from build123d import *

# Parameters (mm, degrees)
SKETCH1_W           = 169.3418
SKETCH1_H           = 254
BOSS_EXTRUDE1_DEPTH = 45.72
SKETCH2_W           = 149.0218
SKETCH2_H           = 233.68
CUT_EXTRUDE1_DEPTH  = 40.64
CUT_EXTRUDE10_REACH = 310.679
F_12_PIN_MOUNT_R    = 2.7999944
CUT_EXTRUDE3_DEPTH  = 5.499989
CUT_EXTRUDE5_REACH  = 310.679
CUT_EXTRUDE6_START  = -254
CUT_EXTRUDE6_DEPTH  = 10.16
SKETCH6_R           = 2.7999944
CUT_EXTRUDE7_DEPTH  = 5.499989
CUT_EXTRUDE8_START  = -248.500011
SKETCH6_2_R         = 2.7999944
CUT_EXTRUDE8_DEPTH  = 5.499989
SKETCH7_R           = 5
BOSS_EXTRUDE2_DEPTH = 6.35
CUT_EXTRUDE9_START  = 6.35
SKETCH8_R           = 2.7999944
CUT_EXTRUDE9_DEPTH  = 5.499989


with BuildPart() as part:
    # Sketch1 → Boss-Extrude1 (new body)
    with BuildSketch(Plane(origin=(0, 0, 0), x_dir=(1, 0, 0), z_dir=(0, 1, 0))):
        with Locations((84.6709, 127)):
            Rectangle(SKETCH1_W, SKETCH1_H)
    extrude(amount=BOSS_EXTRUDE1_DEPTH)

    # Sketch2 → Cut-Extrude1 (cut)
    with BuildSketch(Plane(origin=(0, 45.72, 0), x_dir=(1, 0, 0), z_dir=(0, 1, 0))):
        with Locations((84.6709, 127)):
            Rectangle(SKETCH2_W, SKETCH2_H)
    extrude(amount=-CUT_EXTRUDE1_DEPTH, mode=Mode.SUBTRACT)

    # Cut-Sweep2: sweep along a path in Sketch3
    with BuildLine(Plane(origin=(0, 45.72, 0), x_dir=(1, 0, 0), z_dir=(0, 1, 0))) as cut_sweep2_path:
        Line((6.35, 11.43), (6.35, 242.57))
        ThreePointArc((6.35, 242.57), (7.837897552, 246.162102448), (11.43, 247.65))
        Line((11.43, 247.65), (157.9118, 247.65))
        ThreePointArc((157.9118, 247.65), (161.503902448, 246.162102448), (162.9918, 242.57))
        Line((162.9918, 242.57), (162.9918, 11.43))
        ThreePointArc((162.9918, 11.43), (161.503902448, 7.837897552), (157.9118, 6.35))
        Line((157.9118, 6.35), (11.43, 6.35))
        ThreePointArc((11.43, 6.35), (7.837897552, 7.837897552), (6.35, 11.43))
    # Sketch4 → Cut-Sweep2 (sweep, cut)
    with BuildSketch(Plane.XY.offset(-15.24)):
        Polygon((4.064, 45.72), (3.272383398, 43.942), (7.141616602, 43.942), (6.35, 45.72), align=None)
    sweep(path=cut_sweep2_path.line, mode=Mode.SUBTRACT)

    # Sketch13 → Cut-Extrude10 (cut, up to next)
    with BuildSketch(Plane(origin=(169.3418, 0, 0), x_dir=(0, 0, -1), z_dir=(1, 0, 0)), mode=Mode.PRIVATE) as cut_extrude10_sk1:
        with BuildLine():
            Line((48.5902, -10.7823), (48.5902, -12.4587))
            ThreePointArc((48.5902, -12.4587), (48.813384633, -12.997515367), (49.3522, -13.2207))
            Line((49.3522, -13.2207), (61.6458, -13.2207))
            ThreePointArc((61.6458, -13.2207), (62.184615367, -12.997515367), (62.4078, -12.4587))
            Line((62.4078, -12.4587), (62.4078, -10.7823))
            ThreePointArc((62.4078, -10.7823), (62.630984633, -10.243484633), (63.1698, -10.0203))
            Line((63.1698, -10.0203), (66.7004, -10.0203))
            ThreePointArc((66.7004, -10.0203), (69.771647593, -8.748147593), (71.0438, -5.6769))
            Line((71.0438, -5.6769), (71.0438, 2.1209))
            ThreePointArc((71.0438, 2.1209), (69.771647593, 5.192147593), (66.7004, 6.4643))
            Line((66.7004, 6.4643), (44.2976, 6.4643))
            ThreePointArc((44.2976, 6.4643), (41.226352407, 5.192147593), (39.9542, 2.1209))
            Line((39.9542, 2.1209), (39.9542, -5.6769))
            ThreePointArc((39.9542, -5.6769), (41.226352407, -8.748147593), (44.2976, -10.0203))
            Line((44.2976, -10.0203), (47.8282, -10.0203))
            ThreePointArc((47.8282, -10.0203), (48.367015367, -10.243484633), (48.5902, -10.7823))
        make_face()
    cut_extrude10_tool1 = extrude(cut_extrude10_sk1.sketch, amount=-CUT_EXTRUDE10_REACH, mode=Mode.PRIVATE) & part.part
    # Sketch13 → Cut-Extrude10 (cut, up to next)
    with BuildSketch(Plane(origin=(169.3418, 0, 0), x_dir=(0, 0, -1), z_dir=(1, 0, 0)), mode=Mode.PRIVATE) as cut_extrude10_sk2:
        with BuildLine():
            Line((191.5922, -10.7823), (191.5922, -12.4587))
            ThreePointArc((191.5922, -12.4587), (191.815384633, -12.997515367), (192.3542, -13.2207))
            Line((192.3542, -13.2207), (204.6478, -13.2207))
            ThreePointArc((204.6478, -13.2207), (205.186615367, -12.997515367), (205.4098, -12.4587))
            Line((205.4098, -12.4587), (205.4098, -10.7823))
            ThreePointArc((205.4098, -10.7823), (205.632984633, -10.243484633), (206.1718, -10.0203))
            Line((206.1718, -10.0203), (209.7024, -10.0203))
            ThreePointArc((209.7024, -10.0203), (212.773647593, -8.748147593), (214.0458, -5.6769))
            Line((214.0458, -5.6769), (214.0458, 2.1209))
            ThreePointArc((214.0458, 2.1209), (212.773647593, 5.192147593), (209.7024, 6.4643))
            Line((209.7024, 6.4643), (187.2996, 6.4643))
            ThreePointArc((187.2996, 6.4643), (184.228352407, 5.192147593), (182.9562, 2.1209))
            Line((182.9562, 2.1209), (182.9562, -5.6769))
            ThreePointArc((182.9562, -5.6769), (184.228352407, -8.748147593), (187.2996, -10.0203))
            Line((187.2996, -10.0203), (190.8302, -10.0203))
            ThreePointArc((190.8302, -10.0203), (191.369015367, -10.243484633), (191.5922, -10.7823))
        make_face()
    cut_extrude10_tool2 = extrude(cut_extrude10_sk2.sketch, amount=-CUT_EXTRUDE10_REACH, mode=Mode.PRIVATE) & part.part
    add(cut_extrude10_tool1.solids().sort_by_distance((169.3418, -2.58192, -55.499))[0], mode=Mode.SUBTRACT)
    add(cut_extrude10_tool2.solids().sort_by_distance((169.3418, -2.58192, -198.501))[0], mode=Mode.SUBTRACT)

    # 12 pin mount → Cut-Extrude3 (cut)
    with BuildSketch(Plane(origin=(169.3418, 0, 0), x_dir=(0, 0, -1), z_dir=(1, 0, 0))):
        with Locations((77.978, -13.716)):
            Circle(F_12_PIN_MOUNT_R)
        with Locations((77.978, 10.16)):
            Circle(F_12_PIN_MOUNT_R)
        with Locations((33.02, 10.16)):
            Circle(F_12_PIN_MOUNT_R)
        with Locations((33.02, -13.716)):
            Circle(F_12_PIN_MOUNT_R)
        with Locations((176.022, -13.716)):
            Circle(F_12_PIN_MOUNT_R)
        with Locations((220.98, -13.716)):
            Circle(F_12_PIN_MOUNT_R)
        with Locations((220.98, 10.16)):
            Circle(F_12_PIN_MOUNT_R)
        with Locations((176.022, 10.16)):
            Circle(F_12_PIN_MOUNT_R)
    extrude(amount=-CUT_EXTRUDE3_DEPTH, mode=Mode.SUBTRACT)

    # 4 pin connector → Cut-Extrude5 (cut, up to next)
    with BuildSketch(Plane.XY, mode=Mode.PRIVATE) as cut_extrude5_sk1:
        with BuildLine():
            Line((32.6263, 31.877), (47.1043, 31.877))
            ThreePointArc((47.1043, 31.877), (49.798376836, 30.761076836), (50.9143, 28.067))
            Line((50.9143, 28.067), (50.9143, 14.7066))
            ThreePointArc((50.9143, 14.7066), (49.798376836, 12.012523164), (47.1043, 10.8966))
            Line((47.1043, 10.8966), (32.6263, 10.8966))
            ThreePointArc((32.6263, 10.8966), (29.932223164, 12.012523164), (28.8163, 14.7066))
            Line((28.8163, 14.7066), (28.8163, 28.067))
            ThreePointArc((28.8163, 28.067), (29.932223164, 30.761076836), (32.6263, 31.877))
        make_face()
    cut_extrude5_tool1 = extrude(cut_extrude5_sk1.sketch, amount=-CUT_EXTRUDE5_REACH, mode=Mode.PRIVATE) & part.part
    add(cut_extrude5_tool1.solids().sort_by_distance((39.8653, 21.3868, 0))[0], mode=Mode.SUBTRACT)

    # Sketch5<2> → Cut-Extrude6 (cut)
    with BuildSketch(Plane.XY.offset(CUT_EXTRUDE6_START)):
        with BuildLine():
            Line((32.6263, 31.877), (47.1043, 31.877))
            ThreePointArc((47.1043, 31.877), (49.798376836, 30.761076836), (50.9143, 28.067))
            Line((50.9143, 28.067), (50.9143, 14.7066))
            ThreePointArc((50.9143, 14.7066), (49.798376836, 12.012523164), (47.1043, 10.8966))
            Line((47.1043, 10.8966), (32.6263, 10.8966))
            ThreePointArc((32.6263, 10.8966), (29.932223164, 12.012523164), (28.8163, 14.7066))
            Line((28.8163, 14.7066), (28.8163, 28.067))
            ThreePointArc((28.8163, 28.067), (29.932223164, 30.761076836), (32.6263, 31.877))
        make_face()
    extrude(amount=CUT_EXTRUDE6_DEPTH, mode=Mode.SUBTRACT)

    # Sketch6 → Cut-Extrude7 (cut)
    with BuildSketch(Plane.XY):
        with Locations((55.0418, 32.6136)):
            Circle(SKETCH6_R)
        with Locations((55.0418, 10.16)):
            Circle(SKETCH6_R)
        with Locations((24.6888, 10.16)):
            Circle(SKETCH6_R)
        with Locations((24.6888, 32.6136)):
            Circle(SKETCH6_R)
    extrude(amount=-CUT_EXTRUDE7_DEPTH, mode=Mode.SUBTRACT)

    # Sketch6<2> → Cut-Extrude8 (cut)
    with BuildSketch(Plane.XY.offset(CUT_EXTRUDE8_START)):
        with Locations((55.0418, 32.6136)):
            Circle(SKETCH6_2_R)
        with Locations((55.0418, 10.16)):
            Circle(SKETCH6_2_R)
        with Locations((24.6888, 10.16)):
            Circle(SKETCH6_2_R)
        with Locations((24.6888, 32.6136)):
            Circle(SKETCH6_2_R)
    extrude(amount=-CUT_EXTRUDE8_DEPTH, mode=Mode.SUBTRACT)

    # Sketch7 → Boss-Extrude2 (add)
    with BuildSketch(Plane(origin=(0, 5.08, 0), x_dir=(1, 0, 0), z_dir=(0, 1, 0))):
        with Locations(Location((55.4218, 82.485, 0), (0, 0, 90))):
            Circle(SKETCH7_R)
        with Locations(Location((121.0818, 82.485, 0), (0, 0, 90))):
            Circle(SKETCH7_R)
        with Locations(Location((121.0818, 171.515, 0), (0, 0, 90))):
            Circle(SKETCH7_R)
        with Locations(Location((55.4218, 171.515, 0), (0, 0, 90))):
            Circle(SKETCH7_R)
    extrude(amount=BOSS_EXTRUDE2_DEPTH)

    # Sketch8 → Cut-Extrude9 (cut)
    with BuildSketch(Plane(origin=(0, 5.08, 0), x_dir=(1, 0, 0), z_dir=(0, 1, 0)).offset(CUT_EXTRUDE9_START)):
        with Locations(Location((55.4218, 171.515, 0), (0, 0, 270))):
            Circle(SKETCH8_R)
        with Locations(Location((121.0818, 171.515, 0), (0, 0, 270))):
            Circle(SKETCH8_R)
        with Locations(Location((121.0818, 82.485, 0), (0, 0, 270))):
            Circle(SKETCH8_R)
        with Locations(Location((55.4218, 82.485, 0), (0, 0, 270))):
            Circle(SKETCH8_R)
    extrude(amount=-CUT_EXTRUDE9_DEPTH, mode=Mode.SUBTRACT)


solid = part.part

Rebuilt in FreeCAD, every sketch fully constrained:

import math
import FreeCAD as App
import Part
import Sketcher

V = App.Vector
Q = App.Units.Quantity

doc = App.newDocument("Part")
body = doc.addObject("PartDesign::Body", "Body")

sketch1 = body.newObject("Sketcher::SketchObject", "Sketch")
sketch1.AttachmentSupport = (doc.getObject("XZ_Plane"), [""])
sketch1.MapMode = "FlatFace"
sketch1.addGeometry(Part.LineSegment(V(0, -254, 0), V(0, 0, 0)), False)
sketch1.addGeometry(Part.LineSegment(V(0, 0, 0), V(169, 0, 0)), False)
sketch1.addGeometry(Part.LineSegment(V(169, 0, 0), V(169, -254, 0)), False)
sketch1.addGeometry(Part.LineSegment(V(169, -254, 0), V(0, -254, 0)), False)
sketch1.addConstraint(Sketcher.Constraint("Coincident", 0, 2, 1, 1))
sketch1.addConstraint(Sketcher.Constraint("Coincident", 1, 2, 2, 1))
sketch1.addConstraint(Sketcher.Constraint("Coincident", 2, 2, 3, 1))
sketch1.addConstraint(Sketcher.Constraint("Coincident", 3, 2, 0, 1))
sketch1.addConstraint(Sketcher.Constraint("Vertical", 0))
sketch1.addConstraint(Sketcher.Constraint("Horizontal", 1))
sketch1.addConstraint(Sketcher.Constraint("Vertical", 2))
sketch1.addConstraint(Sketcher.Constraint("Horizontal", 3))
sketch1.addConstraint(Sketcher.Constraint("Coincident", 0, 2, -1, 1))
sketch1.addConstraint(Sketcher.Constraint("DistanceY", 0, 1, 0, 2, Q("10 in")))
sketch1.addConstraint(Sketcher.Constraint("DistanceX", 1, 1, 1, 2, Q("6.667 in")))
pad1 = body.newObject("PartDesign::Pad", "Pad")
pad1.Profile = sketch1
pad1.Length = Q("1.8 in")
pad1.Reversed = True

sketch2 = body.newObject("Sketcher::SketchObject", "Sketch001")
sketch2.AttachmentSupport = (doc.getObject("XZ_Plane"), [""])
sketch2.MapMode = "FlatFace"
sketch2.AttachmentOffset = App.Placement(V(0, 0, -1.8 * 25.4), App.Rotation())
sketch2.addGeometry(Part.LineSegment(V(10, -244, 0), V(10, -10, 0)), False)
sketch2.addGeometry(Part.LineSegment(V(10, -10, 0), V(159, -10, 0)), False)
sketch2.addGeometry(Part.LineSegment(V(159, -10, 0), V(159, -244, 0)), False)
sketch2.addGeometry(Part.LineSegment(V(159, -244, 0), V(10, -244, 0)), False)
sketch2.addConstraint(Sketcher.Constraint("Coincident", 0, 2, 1, 1))
sketch2.addConstraint(Sketcher.Constraint("Coincident", 1, 2, 2, 1))
sketch2.addConstraint(Sketcher.Constraint("Coincident", 2, 2, 3, 1))
sketch2.addConstraint(Sketcher.Constraint("Coincident", 3, 2, 0, 1))
sketch2.addConstraint(Sketcher.Constraint("Vertical", 0))
sketch2.addConstraint(Sketcher.Constraint("Horizontal", 1))
sketch2.addConstraint(Sketcher.Constraint("Vertical", 2))
sketch2.addConstraint(Sketcher.Constraint("Horizontal", 3))
sketch2.addConstraint(Sketcher.Constraint("DistanceY", 0, 1, 0, 2, Q("9.2 in")))
sketch2.addConstraint(Sketcher.Constraint("DistanceX", -1, 1, 0, 2, Q("0.4 in")))
sketch2.addConstraint(Sketcher.Constraint("DistanceY", 0, 2, -1, 1, Q("0.4 in")))
sketch2.addConstraint(Sketcher.Constraint("DistanceX", 1, 1, 1, 2, Q("5.867 in")))
pocket1 = body.newObject("PartDesign::Pocket", "Pocket")
pocket1.Profile = sketch2
pocket1.Length = Q("1.6 in")
pocket1.Reversed = True

sketch3 = body.newObject("Sketcher::SketchObject", "Sketch002")
sketch3.AttachmentSupport = (doc.getObject("XY_Plane"), [""])
sketch3.MapMode = "FlatFace"
sketch3.AttachmentOffset = App.Placement(V(0, 0, -0.6 * 25.4), App.Rotation())
sketch3.addGeometry(Part.LineSegment(V(4.1, 45.7, 0), V(3.3, 43.9, 0)), False)
sketch3.addGeometry(Part.LineSegment(V(3.3, 43.9, 0), V(7.1, 43.9, 0)), False)
sketch3.addGeometry(Part.LineSegment(V(7.1, 43.9, 0), V(6.3, 45.7, 0)), False)
sketch3.addGeometry(Part.LineSegment(V(6.3, 45.7, 0), V(4.1, 45.7, 0)), False)
sketch3.addConstraint(Sketcher.Constraint("Coincident", 0, 2, 1, 1))
sketch3.addConstraint(Sketcher.Constraint("Coincident", 1, 2, 2, 1))
sketch3.addConstraint(Sketcher.Constraint("Coincident", 2, 2, 3, 1))
sketch3.addConstraint(Sketcher.Constraint("Coincident", 3, 2, 0, 1))
sketch3.addConstraint(Sketcher.Constraint("Horizontal", 1))
sketch3.addConstraint(Sketcher.Constraint("Horizontal", 3))
sketch3.addConstraint(Sketcher.Constraint("Equal", 0, 2))
sketch3.addConstraint(Sketcher.Constraint("Angle", 0, Q("-114 deg")))
sketch3.addConstraint(Sketcher.Constraint("DistanceX", 3, 2, 3, 1, Q("0.09 in")))
sketch3.addConstraint(Sketcher.Constraint("DistanceY", -1, 1, 2, 2, Q("1.8 in")))
sketch3.addConstraint(Sketcher.Constraint("DistanceY", -1, 1, 0, 2, Q("1.73 in")))
sketch3.addConstraint(Sketcher.Constraint("DistanceX", -1, 1, 2, 2, Q("0.25 in")))

sketch4 = body.newObject("Sketcher::SketchObject", "Sketch003")
sketch4.AttachmentSupport = (doc.getObject("XZ_Plane"), [""])
sketch4.MapMode = "FlatFace"
sketch4.AttachmentOffset = App.Placement(V(0, 0, -1.8 * 25.4), App.Rotation())
sketch4.addGeometry(Part.LineSegment(V(6, -11, 0), V(6, -243, 0)), False)
sketch4.addGeometry(Part.ArcOfCircle(Part.Circle(V(11, -243, 0), V(0, 0, 1), 5), math.radians(-180), math.radians(-90)), False)
sketch4.addGeometry(Part.LineSegment(V(11, -248, 0), V(158, -248, 0)), False)
sketch4.addGeometry(Part.ArcOfCircle(Part.Circle(V(158, -243, 0), V(0, 0, 1), 5), math.radians(-90), math.radians(0)), False)
sketch4.addGeometry(Part.LineSegment(V(163, -243, 0), V(163, -11, 0)), False)
sketch4.addGeometry(Part.ArcOfCircle(Part.Circle(V(158, -11, 0), V(0, 0, 1), 5), math.radians(0), math.radians(90)), False)
sketch4.addGeometry(Part.LineSegment(V(158, -6, 0), V(11, -6, 0)), False)
sketch4.addGeometry(Part.ArcOfCircle(Part.Circle(V(11, -11, 0), V(0, 0, 1), 5), math.radians(90), math.radians(180)), False)
sketch4.addConstraint(Sketcher.Constraint("Tangent", 0, 2, 1, 1))
sketch4.addConstraint(Sketcher.Constraint("Tangent", 1, 2, 2, 1))
sketch4.addConstraint(Sketcher.Constraint("Tangent", 2, 2, 3, 1))
sketch4.addConstraint(Sketcher.Constraint("Tangent", 3, 2, 4, 1))
sketch4.addConstraint(Sketcher.Constraint("Tangent", 4, 2, 5, 1))
sketch4.addConstraint(Sketcher.Constraint("Tangent", 5, 2, 6, 1))
sketch4.addConstraint(Sketcher.Constraint("Tangent", 6, 2, 7, 1))
sketch4.addConstraint(Sketcher.Constraint("Tangent", 7, 2, 0, 1))
sketch4.addConstraint(Sketcher.Constraint("Vertical", 0))
sketch4.addConstraint(Sketcher.Constraint("Horizontal", 2))
sketch4.addConstraint(Sketcher.Constraint("Vertical", 4))
sketch4.addConstraint(Sketcher.Constraint("Horizontal", 6))
sketch4.addConstraint(Sketcher.Constraint("Equal", 1, 3))
sketch4.addConstraint(Sketcher.Constraint("Equal", 3, 5))
sketch4.addConstraint(Sketcher.Constraint("Equal", 5, 7))
sketch4.addConstraint(Sketcher.Constraint("Radius", 1, Q("0.2 in")))
sketch4.addConstraint(Sketcher.Constraint("DistanceY", 0, 2, 0, 1, Q("9.1 in")))
sketch4.addConstraint(Sketcher.Constraint("DistanceX", 2, 1, 2, 2, Q("5.767 in")))
sketch4.addConstraint(Sketcher.Constraint("DistanceX", -1, 1, 1, 3, Q("0.45 in")))
sketch4.addConstraint(Sketcher.Constraint("DistanceY", 1, 3, -1, 1, Q("9.55 in")))
doc.recompute()

subtractivepipe = body.newObject("PartDesign::SubtractivePipe", "SubtractivePipe")
subtractivepipe.Profile = sketch3
subtractivepipe.Spine = (sketch4, ["Edge1", "Edge2", "Edge3", "Edge4", "Edge5", "Edge6", "Edge7", "Edge8"])

sketch5 = body.newObject("Sketcher::SketchObject", "Sketch004")
sketch5.AttachmentSupport = (doc.getObject("YZ_Plane"), [""])
sketch5.MapMode = "FlatFace"
sketch5.AttachmentOffset = App.Placement(V(0, 0, 6.667 * 25.4), App.Rotation())
sketch5.addGeometry(Part.LineSegment(V(-10.8, -48.6, 0), V(-12.5, -48.6, 0)), False)
sketch5.addGeometry(Part.ArcOfCircle(Part.Circle(V(-12.5, -49.4, 0), V(0, 0, 1), 0.8), math.radians(90), math.radians(180)), False)
sketch5.addGeometry(Part.LineSegment(V(-13.2, -49.4, 0), V(-13.2, -61.6, 0)), False)
sketch5.addGeometry(Part.ArcOfCircle(Part.Circle(V(-12.5, -61.6, 0), V(0, 0, 1), 0.8), math.radians(-180), math.radians(-90)), False)
sketch5.addGeometry(Part.LineSegment(V(-12.5, -62.4, 0), V(-10.8, -62.4, 0)), False)
sketch5.addGeometry(Part.ArcOfCircle(Part.Circle(V(-10.8, -63.2, 0), V(0, 0, 1), 0.8), math.radians(0), math.radians(90)), False)
sketch5.addGeometry(Part.LineSegment(V(-10, -63.2, 0), V(-10, -66.7, 0)), False)
sketch5.addGeometry(Part.ArcOfCircle(Part.Circle(V(-5.7, -66.7, 0), V(0, 0, 1), 4.3), math.radians(-180), math.radians(-90)), False)
sketch5.addGeometry(Part.LineSegment(V(-5.7, -71, 0), V(2.1, -71, 0)), False)
sketch5.addGeometry(Part.ArcOfCircle(Part.Circle(V(2.1, -66.7, 0), V(0, 0, 1), 4.3), math.radians(-90), math.radians(0)), False)
sketch5.addGeometry(Part.LineSegment(V(6.5, -66.7, 0), V(6.5, -44.3, 0)), False)
sketch5.addGeometry(Part.ArcOfCircle(Part.Circle(V(2.1, -44.3, 0), V(0, 0, 1), 4.3), math.radians(0), math.radians(90)), False)
sketch5.addGeometry(Part.LineSegment(V(2.1, -40, 0), V(-5.7, -40, 0)), False)
sketch5.addGeometry(Part.ArcOfCircle(Part.Circle(V(-5.7, -44.3, 0), V(0, 0, 1), 4.3), math.radians(90), math.radians(180)), False)
sketch5.addGeometry(Part.LineSegment(V(-10, -44.3, 0), V(-10, -47.8, 0)), False)
sketch5.addGeometry(Part.ArcOfCircle(Part.Circle(V(-10.8, -47.8, 0), V(0, 0, 1), 0.8), math.radians(-90), math.radians(0)), False)
sketch5.addConstraint(Sketcher.Constraint("Tangent", 0, 2, 1, 1))
sketch5.addConstraint(Sketcher.Constraint("Tangent", 1, 2, 2, 1))
sketch5.addConstraint(Sketcher.Constraint("Tangent", 2, 2, 3, 1))
sketch5.addConstraint(Sketcher.Constraint("Tangent", 3, 2, 4, 1))
sketch5.addConstraint(Sketcher.Constraint("Tangent", 4, 2, 5, 2))
sketch5.addConstraint(Sketcher.Constraint("Tangent", 5, 1, 6, 1))
sketch5.addConstraint(Sketcher.Constraint("Tangent", 6, 2, 7, 1))
sketch5.addConstraint(Sketcher.Constraint("Tangent", 7, 2, 8, 1))
sketch5.addConstraint(Sketcher.Constraint("Tangent", 8, 2, 9, 1))
sketch5.addConstraint(Sketcher.Constraint("Tangent", 9, 2, 10, 1))
sketch5.addConstraint(Sketcher.Constraint("Tangent", 10, 2, 11, 1))
sketch5.addConstraint(Sketcher.Constraint("Tangent", 11, 2, 12, 1))
sketch5.addConstraint(Sketcher.Constraint("Tangent", 12, 2, 13, 1))
sketch5.addConstraint(Sketcher.Constraint("Tangent", 13, 2, 14, 1))
sketch5.addConstraint(Sketcher.Constraint("Tangent", 14, 2, 15, 2))
sketch5.addConstraint(Sketcher.Constraint("Tangent", 15, 1, 0, 1))
sketch5.addConstraint(Sketcher.Constraint("Horizontal", 0))
sketch5.addConstraint(Sketcher.Constraint("Vertical", 2))
sketch5.addConstraint(Sketcher.Constraint("Horizontal", 4))
sketch5.addConstraint(Sketcher.Constraint("Vertical", 6))
sketch5.addConstraint(Sketcher.Constraint("Horizontal", 8))
sketch5.addConstraint(Sketcher.Constraint("Vertical", 10))
sketch5.addConstraint(Sketcher.Constraint("Horizontal", 12))
sketch5.addConstraint(Sketcher.Constraint("Vertical", 14))
sketch5.addConstraint(Sketcher.Constraint("Equal", 1, 3))
sketch5.addConstraint(Sketcher.Constraint("Equal", 3, 5))
sketch5.addConstraint(Sketcher.Constraint("Equal", 7, 9))
sketch5.addConstraint(Sketcher.Constraint("Equal", 9, 11))
sketch5.addConstraint(Sketcher.Constraint("Equal", 11, 13))
sketch5.addConstraint(Sketcher.Constraint("Equal", 5, 15))
sketch5.addConstraint(Sketcher.Constraint("Vertical", 7, 3, 13, 3))
sketch5.addConstraint(Sketcher.Constraint("Equal", 6, 14))
sketch5.addConstraint(Sketcher.Constraint("Radius", 1, Q("0.03 in")))
sketch5.addConstraint(Sketcher.Constraint("Radius", 7, Q("0.171 in")))
sketch5.addConstraint(Sketcher.Constraint("DistanceX", 0, 2, 0, 1, Q("0.066 in")))
sketch5.addConstraint(Sketcher.Constraint("DistanceX", 8, 1, 8, 2, Q("0.307 in")))
sketch5.addConstraint(Sketcher.Constraint("DistanceY", 2, 2, 2, 1, Q("0.484 in")))
sketch5.addConstraint(Sketcher.Constraint("DistanceY", 6, 2, 6, 1, Q("0.139 in")))
sketch5.addConstraint(Sketcher.Constraint("DistanceY", 1, 3, -1, 1, Q("1.943 in")))
sketch5.addConstraint(Sketcher.Constraint("DistanceX", 1, 3, -1, 1, Q("0.4905 in")))
pocket2 = body.newObject("PartDesign::Pocket", "Pocket001")
pocket2.Profile = sketch5
pocket2.Length = Q("6.667 in")

sketch6 = body.newObject("Sketcher::SketchObject", "Sketch005")
sketch6.AttachmentSupport = (doc.getObject("YZ_Plane"), [""])
sketch6.MapMode = "FlatFace"
sketch6.AttachmentOffset = App.Placement(V(0, 0, 6.667 * 25.4), App.Rotation())
sketch6.addGeometry(Part.LineSegment(V(-10.8, -191.6, 0), V(-12.5, -191.6, 0)), False)
sketch6.addGeometry(Part.ArcOfCircle(Part.Circle(V(-12.5, -192.4, 0), V(0, 0, 1), 0.8), math.radians(90), math.radians(180)), False)
sketch6.addGeometry(Part.LineSegment(V(-13.2, -192.4, 0), V(-13.2, -204.6, 0)), False)
sketch6.addGeometry(Part.ArcOfCircle(Part.Circle(V(-12.5, -204.6, 0), V(0, 0, 1), 0.8), math.radians(-180), math.radians(-90)), False)
sketch6.addGeometry(Part.LineSegment(V(-12.5, -205.4, 0), V(-10.8, -205.4, 0)), False)
sketch6.addGeometry(Part.ArcOfCircle(Part.Circle(V(-10.8, -206.2, 0), V(0, 0, 1), 0.8), math.radians(0), math.radians(90)), False)
sketch6.addGeometry(Part.LineSegment(V(-10, -206.2, 0), V(-10, -209.7, 0)), False)
sketch6.addGeometry(Part.ArcOfCircle(Part.Circle(V(-5.7, -209.7, 0), V(0, 0, 1), 4.3), math.radians(-180), math.radians(-90)), False)
sketch6.addGeometry(Part.LineSegment(V(-5.7, -214, 0), V(2.1, -214, 0)), False)
sketch6.addGeometry(Part.ArcOfCircle(Part.Circle(V(2.1, -209.7, 0), V(0, 0, 1), 4.3), math.radians(-90), math.radians(0)), False)
sketch6.addGeometry(Part.LineSegment(V(6.5, -209.7, 0), V(6.5, -187.3, 0)), False)
sketch6.addGeometry(Part.ArcOfCircle(Part.Circle(V(2.1, -187.3, 0), V(0, 0, 1), 4.3), math.radians(0), math.radians(90)), False)
sketch6.addGeometry(Part.LineSegment(V(2.1, -183, 0), V(-5.7, -183, 0)), False)
sketch6.addGeometry(Part.ArcOfCircle(Part.Circle(V(-5.7, -187.3, 0), V(0, 0, 1), 4.3), math.radians(90), math.radians(180)), False)
sketch6.addGeometry(Part.LineSegment(V(-10, -187.3, 0), V(-10, -190.8, 0)), False)
sketch6.addGeometry(Part.ArcOfCircle(Part.Circle(V(-10.8, -190.8, 0), V(0, 0, 1), 0.8), math.radians(-90), math.radians(0)), False)
sketch6.addConstraint(Sketcher.Constraint("Tangent", 0, 2, 1, 1))
sketch6.addConstraint(Sketcher.Constraint("Tangent", 1, 2, 2, 1))
sketch6.addConstraint(Sketcher.Constraint("Tangent", 2, 2, 3, 1))
sketch6.addConstraint(Sketcher.Constraint("Tangent", 3, 2, 4, 1))
sketch6.addConstraint(Sketcher.Constraint("Tangent", 4, 2, 5, 2))
sketch6.addConstraint(Sketcher.Constraint("Tangent", 5, 1, 6, 1))
sketch6.addConstraint(Sketcher.Constraint("Tangent", 6, 2, 7, 1))
sketch6.addConstraint(Sketcher.Constraint("Tangent", 7, 2, 8, 1))
sketch6.addConstraint(Sketcher.Constraint("Tangent", 8, 2, 9, 1))
sketch6.addConstraint(Sketcher.Constraint("Tangent", 9, 2, 10, 1))
sketch6.addConstraint(Sketcher.Constraint("Tangent", 10, 2, 11, 1))
sketch6.addConstraint(Sketcher.Constraint("Tangent", 11, 2, 12, 1))
sketch6.addConstraint(Sketcher.Constraint("Tangent", 12, 2, 13, 1))
sketch6.addConstraint(Sketcher.Constraint("Tangent", 13, 2, 14, 1))
sketch6.addConstraint(Sketcher.Constraint("Tangent", 14, 2, 15, 2))
sketch6.addConstraint(Sketcher.Constraint("Tangent", 15, 1, 0, 1))
sketch6.addConstraint(Sketcher.Constraint("Horizontal", 0))
sketch6.addConstraint(Sketcher.Constraint("Vertical", 2))
sketch6.addConstraint(Sketcher.Constraint("Horizontal", 4))
sketch6.addConstraint(Sketcher.Constraint("Vertical", 6))
sketch6.addConstraint(Sketcher.Constraint("Horizontal", 8))
sketch6.addConstraint(Sketcher.Constraint("Vertical", 10))
sketch6.addConstraint(Sketcher.Constraint("Horizontal", 12))
sketch6.addConstraint(Sketcher.Constraint("Vertical", 14))
sketch6.addConstraint(Sketcher.Constraint("Equal", 1, 3))
sketch6.addConstraint(Sketcher.Constraint("Equal", 3, 5))
sketch6.addConstraint(Sketcher.Constraint("Equal", 7, 9))
sketch6.addConstraint(Sketcher.Constraint("Equal", 9, 11))
sketch6.addConstraint(Sketcher.Constraint("Equal", 11, 13))
sketch6.addConstraint(Sketcher.Constraint("Equal", 5, 15))
sketch6.addConstraint(Sketcher.Constraint("Vertical", 7, 3, 13, 3))
sketch6.addConstraint(Sketcher.Constraint("Equal", 6, 14))
sketch6.addConstraint(Sketcher.Constraint("Radius", 1, Q("0.03 in")))
sketch6.addConstraint(Sketcher.Constraint("Radius", 7, Q("0.171 in")))
sketch6.addConstraint(Sketcher.Constraint("DistanceX", 0, 2, 0, 1, Q("0.066 in")))
sketch6.addConstraint(Sketcher.Constraint("DistanceX", 8, 1, 8, 2, Q("0.307 in")))
sketch6.addConstraint(Sketcher.Constraint("DistanceY", 2, 2, 2, 1, Q("0.484 in")))
sketch6.addConstraint(Sketcher.Constraint("DistanceY", 6, 2, 6, 1, Q("0.139 in")))
sketch6.addConstraint(Sketcher.Constraint("DistanceY", 1, 3, -1, 1, Q("7.573 in")))
sketch6.addConstraint(Sketcher.Constraint("DistanceX", 1, 3, -1, 1, Q("0.4905 in")))
pocket3 = body.newObject("PartDesign::Pocket", "Pocket002")
pocket3.Profile = sketch6
pocket3.Length = Q("6.667 in")

sketch7 = body.newObject("Sketcher::SketchObject", "Sketch006")
sketch7.AttachmentSupport = (doc.getObject("YZ_Plane"), [""])
sketch7.MapMode = "FlatFace"
sketch7.AttachmentOffset = App.Placement(V(0, 0, 6.667 * 25.4), App.Rotation())
sketch7.addGeometry(Part.Circle(V(-13.7, -78, 0), V(0, 0, 1), 2.8), False)
sketch7.addGeometry(Part.Circle(V(10.2, -78, 0), V(0, 0, 1), 2.8), False)
sketch7.addGeometry(Part.Circle(V(10.2, -33, 0), V(0, 0, 1), 2.8), False)
sketch7.addGeometry(Part.Circle(V(-13.7, -33, 0), V(0, 0, 1), 2.8), False)
sketch7.addGeometry(Part.Circle(V(-13.7, -176, 0), V(0, 0, 1), 2.8), False)
sketch7.addGeometry(Part.Circle(V(-13.7, -221, 0), V(0, 0, 1), 2.8), False)
sketch7.addGeometry(Part.Circle(V(10.2, -221, 0), V(0, 0, 1), 2.8), False)
sketch7.addGeometry(Part.Circle(V(10.2, -176, 0), V(0, 0, 1), 2.8), False)
sketch7.addConstraint(Sketcher.Constraint("Equal", 0, 1))
sketch7.addConstraint(Sketcher.Constraint("Equal", 1, 2))
sketch7.addConstraint(Sketcher.Constraint("Equal", 2, 3))
sketch7.addConstraint(Sketcher.Constraint("Equal", 3, 4))
sketch7.addConstraint(Sketcher.Constraint("Equal", 4, 5))
sketch7.addConstraint(Sketcher.Constraint("Equal", 5, 6))
sketch7.addConstraint(Sketcher.Constraint("Equal", 6, 7))
sketch7.addConstraint(Sketcher.Constraint("Horizontal", 0, 3, 1, 3))
sketch7.addConstraint(Sketcher.Constraint("Horizontal", 2, 3, 3, 3))
sketch7.addConstraint(Sketcher.Constraint("Horizontal", 5, 3, 6, 3))
sketch7.addConstraint(Sketcher.Constraint("Horizontal", 4, 3, 7, 3))
sketch7.addConstraint(Sketcher.Constraint("Vertical", 1, 3, 2, 3))
sketch7.addConstraint(Sketcher.Constraint("Vertical", 0, 3, 3, 3))
sketch7.addConstraint(Sketcher.Constraint("Vertical", 3, 3, 4, 3))
sketch7.addConstraint(Sketcher.Constraint("Vertical", 4, 3, 5, 3))
sketch7.addConstraint(Sketcher.Constraint("Vertical", 2, 3, 6, 3))
sketch7.addConstraint(Sketcher.Constraint("Vertical", 6, 3, 7, 3))
sketch7.addConstraint(Sketcher.Constraint("DistanceX", -1, 1, 1, 3, Q("0.4 in")))
sketch7.addConstraint(Sketcher.Constraint("DistanceY", 2, 3, -1, 1, Q("1.3 in")))
sketch7.addConstraint(Sketcher.Constraint("DistanceY", 5, 3, -1, 1, Q("8.7 in")))
sketch7.addConstraint(Sketcher.Constraint("DistanceX", 0, 3, -1, 1, Q("0.54 in")))
sketch7.addConstraint(Sketcher.Constraint("DistanceY", 0, 3, -1, 1, Q("3.07 in")))
sketch7.addConstraint(Sketcher.Constraint("DistanceY", 4, 3, -1, 1, Q("6.93 in")))
sketch7.addConstraint(Sketcher.Constraint("Diameter", 0, Q("5.599989 mm")))
pocket4 = body.newObject("PartDesign::Pocket", "Pocket003")
pocket4.Profile = sketch7
pocket4.Length = 5.499989

sketch8 = body.newObject("Sketcher::SketchObject", "Sketch007")
sketch8.AttachmentSupport = (doc.getObject("XY_Plane"), [""])
sketch8.MapMode = "FlatFace"
sketch8.addGeometry(Part.LineSegment(V(47.1, 31.9, 0), V(32.6, 31.9, 0)), False)
sketch8.addGeometry(Part.ArcOfCircle(Part.Circle(V(32.6, 28.1, 0), V(0, 0, 1), 3.8), math.radians(90), math.radians(180)), False)
sketch8.addGeometry(Part.LineSegment(V(28.8, 28.1, 0), V(28.8, 14.7, 0)), False)
sketch8.addGeometry(Part.ArcOfCircle(Part.Circle(V(32.6, 14.7, 0), V(0, 0, 1), 3.8), math.radians(-180), math.radians(-90)), False)
sketch8.addGeometry(Part.LineSegment(V(32.6, 10.9, 0), V(47.1, 10.9, 0)), False)
sketch8.addGeometry(Part.ArcOfCircle(Part.Circle(V(47.1, 14.7, 0), V(0, 0, 1), 3.8), math.radians(-90), math.radians(0)), False)
sketch8.addGeometry(Part.LineSegment(V(50.9, 14.7, 0), V(50.9, 28.1, 0)), False)
sketch8.addGeometry(Part.ArcOfCircle(Part.Circle(V(47.1, 28.1, 0), V(0, 0, 1), 3.8), math.radians(0), math.radians(90)), False)
sketch8.addConstraint(Sketcher.Constraint("Tangent", 0, 2, 1, 1))
sketch8.addConstraint(Sketcher.Constraint("Tangent", 1, 2, 2, 1))
sketch8.addConstraint(Sketcher.Constraint("Tangent", 2, 2, 3, 1))
sketch8.addConstraint(Sketcher.Constraint("Tangent", 3, 2, 4, 1))
sketch8.addConstraint(Sketcher.Constraint("Tangent", 4, 2, 5, 1))
sketch8.addConstraint(Sketcher.Constraint("Tangent", 5, 2, 6, 1))
sketch8.addConstraint(Sketcher.Constraint("Tangent", 6, 2, 7, 1))
sketch8.addConstraint(Sketcher.Constraint("Tangent", 7, 2, 0, 1))
sketch8.addConstraint(Sketcher.Constraint("Horizontal", 0))
sketch8.addConstraint(Sketcher.Constraint("Vertical", 2))
sketch8.addConstraint(Sketcher.Constraint("Horizontal", 4))
sketch8.addConstraint(Sketcher.Constraint("Vertical", 6))
sketch8.addConstraint(Sketcher.Constraint("Equal", 1, 3))
sketch8.addConstraint(Sketcher.Constraint("Equal", 3, 5))
sketch8.addConstraint(Sketcher.Constraint("Equal", 5, 7))
sketch8.addConstraint(Sketcher.Constraint("Radius", 1, Q("0.15 in")))
sketch8.addConstraint(Sketcher.Constraint("DistanceX", 0, 2, 0, 1, Q("0.57 in")))
sketch8.addConstraint(Sketcher.Constraint("DistanceY", 2, 2, 2, 1, Q("0.526 in")))
sketch8.addConstraint(Sketcher.Constraint("DistanceY", -1, 1, 1, 3, Q("1.105 in")))
sketch8.addConstraint(Sketcher.Constraint("DistanceX", -1, 1, 1, 3, Q("1.2845 in")))
pocket5 = body.newObject("PartDesign::Pocket", "Pocket004")
pocket5.Profile = sketch8
pocket5.Type = "UpToFirst"

sketch9 = body.newObject("Sketcher::SketchObject", "Sketch008")
sketch9.AttachmentSupport = (doc.getObject("XY_Plane"), [""])
sketch9.MapMode = "FlatFace"
sketch9.AttachmentOffset = App.Placement(V(0, 0, -10 * 25.4), App.Rotation())
sketch9.addGeometry(Part.LineSegment(V(47.1, 31.9, 0), V(32.6, 31.9, 0)), False)
sketch9.addGeometry(Part.ArcOfCircle(Part.Circle(V(32.6, 28.1, 0), V(0, 0, 1), 3.8), math.radians(90), math.radians(180)), False)
sketch9.addGeometry(Part.LineSegment(V(28.8, 28.1, 0), V(28.8, 14.7, 0)), False)
sketch9.addGeometry(Part.ArcOfCircle(Part.Circle(V(32.6, 14.7, 0), V(0, 0, 1), 3.8), math.radians(-180), math.radians(-90)), False)
sketch9.addGeometry(Part.LineSegment(V(32.6, 10.9, 0), V(47.1, 10.9, 0)), False)
sketch9.addGeometry(Part.ArcOfCircle(Part.Circle(V(47.1, 14.7, 0), V(0, 0, 1), 3.8), math.radians(-90), math.radians(0)), False)
sketch9.addGeometry(Part.LineSegment(V(50.9, 14.7, 0), V(50.9, 28.1, 0)), False)
sketch9.addGeometry(Part.ArcOfCircle(Part.Circle(V(47.1, 28.1, 0), V(0, 0, 1), 3.8), math.radians(0), math.radians(90)), False)
sketch9.addConstraint(Sketcher.Constraint("Tangent", 0, 2, 1, 1))
sketch9.addConstraint(Sketcher.Constraint("Tangent", 1, 2, 2, 1))
sketch9.addConstraint(Sketcher.Constraint("Tangent", 2, 2, 3, 1))
sketch9.addConstraint(Sketcher.Constraint("Tangent", 3, 2, 4, 1))
sketch9.addConstraint(Sketcher.Constraint("Tangent", 4, 2, 5, 1))
sketch9.addConstraint(Sketcher.Constraint("Tangent", 5, 2, 6, 1))
sketch9.addConstraint(Sketcher.Constraint("Tangent", 6, 2, 7, 1))
sketch9.addConstraint(Sketcher.Constraint("Tangent", 7, 2, 0, 1))
sketch9.addConstraint(Sketcher.Constraint("Horizontal", 0))
sketch9.addConstraint(Sketcher.Constraint("Vertical", 2))
sketch9.addConstraint(Sketcher.Constraint("Horizontal", 4))
sketch9.addConstraint(Sketcher.Constraint("Vertical", 6))
sketch9.addConstraint(Sketcher.Constraint("Equal", 1, 3))
sketch9.addConstraint(Sketcher.Constraint("Equal", 3, 5))
sketch9.addConstraint(Sketcher.Constraint("Equal", 5, 7))
sketch9.addConstraint(Sketcher.Constraint("Radius", 1, Q("0.15 in")))
sketch9.addConstraint(Sketcher.Constraint("DistanceX", 0, 2, 0, 1, Q("0.57 in")))
sketch9.addConstraint(Sketcher.Constraint("DistanceY", 2, 2, 2, 1, Q("0.526 in")))
sketch9.addConstraint(Sketcher.Constraint("DistanceY", -1, 1, 1, 3, Q("1.105 in")))
sketch9.addConstraint(Sketcher.Constraint("DistanceX", -1, 1, 1, 3, Q("1.2845 in")))
pocket6 = body.newObject("PartDesign::Pocket", "Pocket005")
pocket6.Profile = sketch9
pocket6.Length = Q("0.4 in")
pocket6.Reversed = True

sketch10 = body.newObject("Sketcher::SketchObject", "Sketch009")
sketch10.AttachmentSupport = (doc.getObject("XY_Plane"), [""])
sketch10.MapMode = "FlatFace"
sketch10.addGeometry(Part.Circle(V(55, 32.6, 0), V(0, 0, 1), 2.8), False)
sketch10.addGeometry(Part.Circle(V(55, 10.2, 0), V(0, 0, 1), 2.8), False)
sketch10.addGeometry(Part.Circle(V(24.7, 10.2, 0), V(0, 0, 1), 2.8), False)
sketch10.addGeometry(Part.Circle(V(24.7, 32.6, 0), V(0, 0, 1), 2.8), False)
sketch10.addConstraint(Sketcher.Constraint("Equal", 0, 1))
sketch10.addConstraint(Sketcher.Constraint("Equal", 1, 2))
sketch10.addConstraint(Sketcher.Constraint("Equal", 2, 3))
sketch10.addConstraint(Sketcher.Constraint("Horizontal", 1, 3, 2, 3))
sketch10.addConstraint(Sketcher.Constraint("Horizontal", 0, 3, 3, 3))
sketch10.addConstraint(Sketcher.Constraint("Vertical", 0, 3, 1, 3))
sketch10.addConstraint(Sketcher.Constraint("Vertical", 2, 3, 3, 3))
sketch10.addConstraint(Sketcher.Constraint("DistanceY", -1, 1, 1, 3, Q("0.4 in")))
sketch10.addConstraint(Sketcher.Constraint("Diameter", 0, Q("5.599989 mm")))
sketch10.addConstraint(Sketcher.Constraint("DistanceX", -1, 1, 0, 3, Q("2.167 in")))
sketch10.addConstraint(Sketcher.Constraint("DistanceY", -1, 1, 0, 3, Q("1.284 in")))
sketch10.addConstraint(Sketcher.Constraint("DistanceX", -1, 1, 2, 3, Q("0.972 in")))
pocket7 = body.newObject("PartDesign::Pocket", "Pocket006")
pocket7.Profile = sketch10
pocket7.Length = 5.499989

sketch11 = body.newObject("Sketcher::SketchObject", "Sketch010")
sketch11.AttachmentSupport = (doc.getObject("XY_Plane"), [""])
sketch11.MapMode = "FlatFace"
sketch11.AttachmentOffset = App.Placement(V(0, 0, -248.500011), App.Rotation())
sketch11.addGeometry(Part.Circle(V(55, 32.6, 0), V(0, 0, 1), 2.8), False)
sketch11.addGeometry(Part.Circle(V(55, 10.2, 0), V(0, 0, 1), 2.8), False)
sketch11.addGeometry(Part.Circle(V(24.7, 10.2, 0), V(0, 0, 1), 2.8), False)
sketch11.addGeometry(Part.Circle(V(24.7, 32.6, 0), V(0, 0, 1), 2.8), False)
sketch11.addConstraint(Sketcher.Constraint("Equal", 0, 1))
sketch11.addConstraint(Sketcher.Constraint("Equal", 1, 2))
sketch11.addConstraint(Sketcher.Constraint("Equal", 2, 3))
sketch11.addConstraint(Sketcher.Constraint("Horizontal", 1, 3, 2, 3))
sketch11.addConstraint(Sketcher.Constraint("Horizontal", 0, 3, 3, 3))
sketch11.addConstraint(Sketcher.Constraint("Vertical", 0, 3, 1, 3))
sketch11.addConstraint(Sketcher.Constraint("Vertical", 2, 3, 3, 3))
sketch11.addConstraint(Sketcher.Constraint("DistanceY", -1, 1, 1, 3, Q("0.4 in")))
sketch11.addConstraint(Sketcher.Constraint("Diameter", 0, Q("5.599989 mm")))
sketch11.addConstraint(Sketcher.Constraint("DistanceX", -1, 1, 0, 3, Q("2.167 in")))
sketch11.addConstraint(Sketcher.Constraint("DistanceY", -1, 1, 0, 3, Q("1.284 in")))
sketch11.addConstraint(Sketcher.Constraint("DistanceX", -1, 1, 2, 3, Q("0.972 in")))
pocket8 = body.newObject("PartDesign::Pocket", "Pocket007")
pocket8.Profile = sketch11
pocket8.Length = 5.499989

sketch12 = body.newObject("Sketcher::SketchObject", "Sketch011")
sketch12.AttachmentSupport = (doc.getObject("XZ_Plane"), [""])
sketch12.MapMode = "FlatFace"
sketch12.AttachmentOffset = App.Placement(V(0, 0, -0.2 * 25.4), App.Rotation())
sketch12.addGeometry(Part.Circle(V(55, -82, 0), V(0, 0, 1), 5), False)
sketch12.addGeometry(Part.Circle(V(121, -82, 0), V(0, 0, 1), 5), False)
sketch12.addGeometry(Part.Circle(V(121, -172, 0), V(0, 0, 1), 5), False)
sketch12.addGeometry(Part.Circle(V(55, -172, 0), V(0, 0, 1), 5), False)
sketch12.addConstraint(Sketcher.Constraint("Equal", 0, 1))
sketch12.addConstraint(Sketcher.Constraint("Equal", 1, 2))
sketch12.addConstraint(Sketcher.Constraint("Equal", 2, 3))
sketch12.addConstraint(Sketcher.Constraint("Horizontal", 0, 3, 1, 3))
sketch12.addConstraint(Sketcher.Constraint("Horizontal", 2, 3, 3, 3))
sketch12.addConstraint(Sketcher.Constraint("Vertical", 1, 3, 2, 3))
sketch12.addConstraint(Sketcher.Constraint("Vertical", 0, 3, 3, 3))
sketch12.addConstraint(Sketcher.Constraint("Diameter", 0, Q("10 mm")))
sketch12.addConstraint(Sketcher.Constraint("DistanceX", -1, 1, 1, 3, Q("4.767 in")))
sketch12.addConstraint(Sketcher.Constraint("DistanceX", -1, 1, 0, 3, Q("55.4218 mm")))
sketch12.addConstraint(Sketcher.Constraint("DistanceY", 0, 3, -1, 1, Q("82.485 mm")))
sketch12.addConstraint(Sketcher.Constraint("DistanceY", 2, 3, -1, 1, Q("171.515 mm")))
pad2 = body.newObject("PartDesign::Pad", "Pad001")
pad2.Profile = sketch12
pad2.Length = Q("0.25 in")
pad2.Reversed = True

sketch13 = body.newObject("Sketcher::SketchObject", "Sketch012")
sketch13.AttachmentSupport = (doc.getObject("XZ_Plane"), [""])
sketch13.MapMode = "FlatFace"
sketch13.AttachmentOffset = App.Placement(V(0, 0, -0.45 * 25.4), App.Rotation())
sketch13.addGeometry(Part.Circle(V(55.4, -171.5, 0), V(0, 0, 1), 2.8), False)
sketch13.addGeometry(Part.Circle(V(121.1, -171.5, 0), V(0, 0, 1), 2.8), False)
sketch13.addGeometry(Part.Circle(V(121.1, -82.5, 0), V(0, 0, 1), 2.8), False)
sketch13.addGeometry(Part.Circle(V(55.4, -82.5, 0), V(0, 0, 1), 2.8), False)
sketch13.addConstraint(Sketcher.Constraint("Equal", 0, 1))
sketch13.addConstraint(Sketcher.Constraint("Equal", 1, 2))
sketch13.addConstraint(Sketcher.Constraint("Equal", 2, 3))
sketch13.addConstraint(Sketcher.Constraint("Horizontal", 0, 3, 1, 3))
sketch13.addConstraint(Sketcher.Constraint("Horizontal", 2, 3, 3, 3))
sketch13.addConstraint(Sketcher.Constraint("Vertical", 1, 3, 2, 3))
sketch13.addConstraint(Sketcher.Constraint("Vertical", 0, 3, 3, 3))
sketch13.addConstraint(Sketcher.Constraint("Diameter", 0, Q("5.599989 mm")))
sketch13.addConstraint(Sketcher.Constraint("DistanceX", -1, 1, 1, 3, Q("4.767 in")))
sketch13.addConstraint(Sketcher.Constraint("DistanceX", -1, 1, 0, 3, Q("55.4218 mm")))
sketch13.addConstraint(Sketcher.Constraint("DistanceY", 0, 3, -1, 1, Q("171.515 mm")))
sketch13.addConstraint(Sketcher.Constraint("DistanceY", 2, 3, -1, 1, Q("82.485 mm")))
pocket9 = body.newObject("PartDesign::Pocket", "Pocket008")
pocket9.Profile = sketch13
pocket9.Length = 5.499989
pocket9.Reversed = True

doc.recompute()
